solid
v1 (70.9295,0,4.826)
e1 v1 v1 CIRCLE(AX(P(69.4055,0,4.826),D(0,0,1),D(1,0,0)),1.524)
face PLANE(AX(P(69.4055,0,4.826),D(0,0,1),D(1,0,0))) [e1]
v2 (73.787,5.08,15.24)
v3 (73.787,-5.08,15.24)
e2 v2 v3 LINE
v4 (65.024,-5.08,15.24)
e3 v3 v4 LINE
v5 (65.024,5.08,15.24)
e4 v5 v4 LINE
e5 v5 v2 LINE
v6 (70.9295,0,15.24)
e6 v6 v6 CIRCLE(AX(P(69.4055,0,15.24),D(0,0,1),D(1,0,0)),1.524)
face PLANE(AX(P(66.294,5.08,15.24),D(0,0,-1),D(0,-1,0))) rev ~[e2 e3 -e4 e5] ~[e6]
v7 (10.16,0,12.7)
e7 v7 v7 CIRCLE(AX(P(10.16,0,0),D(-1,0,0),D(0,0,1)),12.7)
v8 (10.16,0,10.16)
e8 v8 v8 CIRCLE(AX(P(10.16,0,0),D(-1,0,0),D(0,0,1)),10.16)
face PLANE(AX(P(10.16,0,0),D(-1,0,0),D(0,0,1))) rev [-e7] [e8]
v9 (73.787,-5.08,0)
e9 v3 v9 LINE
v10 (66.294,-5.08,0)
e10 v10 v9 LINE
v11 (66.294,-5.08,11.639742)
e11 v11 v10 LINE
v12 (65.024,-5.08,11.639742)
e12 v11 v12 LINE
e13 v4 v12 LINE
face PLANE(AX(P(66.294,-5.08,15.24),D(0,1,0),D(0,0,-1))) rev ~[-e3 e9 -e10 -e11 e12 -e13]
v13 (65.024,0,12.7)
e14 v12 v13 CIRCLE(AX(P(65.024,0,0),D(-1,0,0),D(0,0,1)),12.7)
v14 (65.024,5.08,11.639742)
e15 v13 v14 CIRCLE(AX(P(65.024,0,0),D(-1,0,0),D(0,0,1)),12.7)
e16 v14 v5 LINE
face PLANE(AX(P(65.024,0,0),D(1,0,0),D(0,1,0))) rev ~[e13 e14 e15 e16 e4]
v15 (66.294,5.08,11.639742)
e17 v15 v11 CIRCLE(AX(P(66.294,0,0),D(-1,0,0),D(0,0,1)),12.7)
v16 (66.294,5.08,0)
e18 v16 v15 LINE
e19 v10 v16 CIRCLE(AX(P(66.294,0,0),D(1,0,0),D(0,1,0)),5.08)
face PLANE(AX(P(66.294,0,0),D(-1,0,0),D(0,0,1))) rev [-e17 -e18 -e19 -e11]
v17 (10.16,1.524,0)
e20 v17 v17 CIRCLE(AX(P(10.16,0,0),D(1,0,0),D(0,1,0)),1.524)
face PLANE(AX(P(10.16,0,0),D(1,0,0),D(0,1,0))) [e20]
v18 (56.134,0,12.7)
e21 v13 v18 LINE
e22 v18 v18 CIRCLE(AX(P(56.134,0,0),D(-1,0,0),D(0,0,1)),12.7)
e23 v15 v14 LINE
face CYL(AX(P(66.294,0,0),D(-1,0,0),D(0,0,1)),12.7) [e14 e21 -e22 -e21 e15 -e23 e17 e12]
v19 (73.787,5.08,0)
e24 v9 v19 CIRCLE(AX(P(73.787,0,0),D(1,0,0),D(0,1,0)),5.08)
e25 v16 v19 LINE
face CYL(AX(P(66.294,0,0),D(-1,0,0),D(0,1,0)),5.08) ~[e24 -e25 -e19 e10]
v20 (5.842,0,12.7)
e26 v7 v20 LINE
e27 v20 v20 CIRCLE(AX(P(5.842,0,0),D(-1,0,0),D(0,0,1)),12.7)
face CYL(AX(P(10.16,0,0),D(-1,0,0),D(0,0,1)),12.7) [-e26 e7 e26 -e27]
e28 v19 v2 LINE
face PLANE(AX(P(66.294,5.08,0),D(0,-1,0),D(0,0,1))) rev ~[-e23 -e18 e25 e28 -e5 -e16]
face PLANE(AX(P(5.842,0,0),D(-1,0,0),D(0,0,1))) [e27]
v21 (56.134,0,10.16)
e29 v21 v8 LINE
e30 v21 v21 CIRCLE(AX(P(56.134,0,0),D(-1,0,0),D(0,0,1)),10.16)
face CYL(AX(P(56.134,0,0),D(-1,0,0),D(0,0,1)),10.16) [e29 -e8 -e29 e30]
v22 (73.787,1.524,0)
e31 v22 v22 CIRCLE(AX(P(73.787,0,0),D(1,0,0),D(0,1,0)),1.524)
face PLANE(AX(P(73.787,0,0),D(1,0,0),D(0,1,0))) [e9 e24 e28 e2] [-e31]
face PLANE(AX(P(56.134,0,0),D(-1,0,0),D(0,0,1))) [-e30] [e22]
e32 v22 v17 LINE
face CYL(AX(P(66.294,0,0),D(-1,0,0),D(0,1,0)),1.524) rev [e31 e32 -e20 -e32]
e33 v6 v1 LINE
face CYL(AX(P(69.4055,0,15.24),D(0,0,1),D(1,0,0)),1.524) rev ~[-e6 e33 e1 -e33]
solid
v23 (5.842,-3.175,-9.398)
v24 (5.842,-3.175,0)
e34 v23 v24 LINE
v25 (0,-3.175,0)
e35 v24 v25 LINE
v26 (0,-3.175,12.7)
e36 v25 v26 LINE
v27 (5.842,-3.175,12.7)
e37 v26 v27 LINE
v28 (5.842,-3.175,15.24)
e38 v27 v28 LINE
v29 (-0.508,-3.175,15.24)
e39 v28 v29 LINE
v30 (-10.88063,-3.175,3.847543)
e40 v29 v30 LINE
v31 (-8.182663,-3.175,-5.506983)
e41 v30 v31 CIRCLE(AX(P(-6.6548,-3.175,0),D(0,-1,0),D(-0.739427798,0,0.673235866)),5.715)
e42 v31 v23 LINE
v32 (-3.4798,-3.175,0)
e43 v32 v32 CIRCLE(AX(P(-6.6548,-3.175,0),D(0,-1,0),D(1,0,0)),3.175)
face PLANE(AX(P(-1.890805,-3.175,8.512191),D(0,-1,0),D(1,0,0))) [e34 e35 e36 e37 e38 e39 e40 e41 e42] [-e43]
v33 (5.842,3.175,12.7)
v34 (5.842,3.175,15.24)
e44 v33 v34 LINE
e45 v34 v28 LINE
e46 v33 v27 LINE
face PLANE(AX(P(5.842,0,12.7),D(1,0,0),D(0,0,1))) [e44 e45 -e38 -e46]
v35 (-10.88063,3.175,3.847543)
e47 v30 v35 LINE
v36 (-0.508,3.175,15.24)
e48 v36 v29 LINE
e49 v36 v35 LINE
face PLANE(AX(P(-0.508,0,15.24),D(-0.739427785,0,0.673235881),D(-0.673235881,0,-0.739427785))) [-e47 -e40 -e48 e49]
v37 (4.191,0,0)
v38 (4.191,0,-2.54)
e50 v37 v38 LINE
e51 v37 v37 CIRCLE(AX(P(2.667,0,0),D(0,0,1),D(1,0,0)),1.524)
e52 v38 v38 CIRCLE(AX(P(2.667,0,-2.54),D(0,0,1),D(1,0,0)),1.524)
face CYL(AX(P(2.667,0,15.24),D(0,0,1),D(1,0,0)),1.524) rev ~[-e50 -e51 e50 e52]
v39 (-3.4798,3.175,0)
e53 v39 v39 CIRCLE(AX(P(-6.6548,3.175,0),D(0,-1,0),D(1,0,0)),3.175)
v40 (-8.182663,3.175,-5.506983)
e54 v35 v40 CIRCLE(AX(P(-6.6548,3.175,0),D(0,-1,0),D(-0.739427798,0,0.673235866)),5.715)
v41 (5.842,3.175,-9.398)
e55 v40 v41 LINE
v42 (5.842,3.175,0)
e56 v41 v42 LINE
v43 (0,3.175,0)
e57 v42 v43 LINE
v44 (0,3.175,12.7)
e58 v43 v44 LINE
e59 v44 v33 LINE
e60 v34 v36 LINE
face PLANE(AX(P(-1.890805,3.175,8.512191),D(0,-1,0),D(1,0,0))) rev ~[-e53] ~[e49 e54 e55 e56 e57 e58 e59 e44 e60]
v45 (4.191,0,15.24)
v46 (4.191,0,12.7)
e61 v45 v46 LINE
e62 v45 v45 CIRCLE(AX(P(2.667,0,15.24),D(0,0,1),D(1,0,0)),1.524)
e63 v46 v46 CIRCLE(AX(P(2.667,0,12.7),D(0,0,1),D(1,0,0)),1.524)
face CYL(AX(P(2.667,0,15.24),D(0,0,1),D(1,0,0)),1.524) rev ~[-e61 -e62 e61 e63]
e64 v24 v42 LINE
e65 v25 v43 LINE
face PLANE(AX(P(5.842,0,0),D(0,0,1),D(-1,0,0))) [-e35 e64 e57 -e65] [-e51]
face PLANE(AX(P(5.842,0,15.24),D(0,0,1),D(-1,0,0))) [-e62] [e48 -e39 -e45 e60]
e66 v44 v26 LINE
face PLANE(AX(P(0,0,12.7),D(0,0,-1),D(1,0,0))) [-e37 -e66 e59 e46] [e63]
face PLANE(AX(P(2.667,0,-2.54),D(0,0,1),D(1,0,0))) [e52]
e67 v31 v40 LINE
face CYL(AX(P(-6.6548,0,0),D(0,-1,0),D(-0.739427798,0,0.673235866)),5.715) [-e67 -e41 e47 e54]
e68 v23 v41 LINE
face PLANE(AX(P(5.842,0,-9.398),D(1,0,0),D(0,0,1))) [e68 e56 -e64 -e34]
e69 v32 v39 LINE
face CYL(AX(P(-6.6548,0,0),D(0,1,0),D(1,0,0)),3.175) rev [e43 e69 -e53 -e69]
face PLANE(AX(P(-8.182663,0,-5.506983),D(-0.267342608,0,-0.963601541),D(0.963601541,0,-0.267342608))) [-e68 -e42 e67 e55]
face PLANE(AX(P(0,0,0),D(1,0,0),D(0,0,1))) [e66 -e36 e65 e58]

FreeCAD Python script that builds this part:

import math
import FreeCAD as App
import Part
import Sketcher
Q = App.Units.Quantity


def add_polygon(sketch, points):
    """Adds a closed chain of lines whose ends are joined by coincident constraints."""
    first, n = sketch.GeometryCount, len(points)
    for a, b in zip(points, points[1:] + points[:1]):
        sketch.addGeometry(Part.LineSegment(App.Vector(*a, 0), App.Vector(*b, 0)), False)
    for i in range(n):
        sketch.addConstraint(Sketcher.Constraint("Coincident", first + i, 2, first + (i + 1) % n, 1))

doc = App.newDocument("Part")
params = doc.addObject("Spreadsheet::Sheet", "Params")
for row, (alias, value) in enumerate([
    ("sketch1_diameter", "0.25 in"),
    ("sketch1_height", "0.5 in"),
    ("sketch1_height2", "0.1 in"),
    ("sketch1_radius", "0.225 in"),
    ("sketch1_width", "0.23 in"),
    ("pad1_length", "0.25 in"),
    ("sketch2_diameter", "0.12 in"),
    ("pocket1_length", "0.7 in"),
    ("sketch3_width", "0.4 in"),
    ("sketch3_height", "0.5 in"),
    ("sketch3_height2", "0.1 in"),
    ("sketch3_width2", "2.38 in"),
    ("sketch3_width3", "1.81 in"),
    ("revolution_angle", "360 deg"),
    ("sketch4_radius", "0.2 in"),
    ("sketch4_diameter", "0.12 in"),
    ("sketch4_height", "0.6 in"),
    ("pad2_length", "0.05 in"),
    ("sketch5_radius", "0.2 in"),
    ("sketch5_diameter", "0.12 in"),
    ("sketch5_height", "0.6 in"),
    ("pad3_length", "0.295 in"),
    ("sketch6_diameter", "0.12 in"),
    ("pocket2_length", "2.21 in"),
    ("sketch7_diameter", "0.12 in"),
    ("pocket3_length", "0.41 in"),
], start=1):
    params.set(f"A{row}", alias)
    params.set(f"B{row}", "=" + value)
    params.setAlias(f"B{row}", alias)

body = doc.addObject("PartDesign::Body", "Body")

# Sketch on XZ plane
sketch1 = doc.addObject("Sketcher::SketchObject", "Sketch")
body.addObject(sketch1)
sketch1.AttachmentSupport = (doc.XZ_Plane, [""])
sketch1.MapMode = "FlatFace"
sketch1.addGeometry([
    Part.LineSegment(App.Vector(0, 0, 0), App.Vector(0, 12.7, 0)),  # 0
    Part.LineSegment(App.Vector(0, 12.7, 0), App.Vector(5.8, 12.7, 0)),  # 1
    Part.LineSegment(App.Vector(5.8, 12.7, 0), App.Vector(5.8, 15.2, 0)),  # 2
    Part.LineSegment(App.Vector(5.8, 15.2, 0), App.Vector(-0.5, 15.2, 0)),  # 3
    Part.LineSegment(App.Vector(-0.5, 15.2, 0), App.Vector(-10.9, 3.8, 0)),  # 4
    Part.ArcOfCircle(Part.Circle(App.Vector(-6.7, 0, 0), App.Vector(0, 0, 1), 5.7), math.radians(138), math.radians(254)),  # 5
    Part.LineSegment(App.Vector(-8.2, -5.5, 0), App.Vector(5.8, -9.4, 0)),  # 6
    Part.LineSegment(App.Vector(5.8, -9.4, 0), App.Vector(5.8, 0, 0)),  # 7
    Part.LineSegment(App.Vector(5.8, 0, 0), App.Vector(0, 0, 0)),  # 8
    Part.Circle(App.Vector(-6.7, 0, 0), App.Vector(0, 0, 1), 3.2),  # 9
], False)
sketch1.addConstraint([
    Sketcher.Constraint("Coincident", 0, 2, 1, 1),
    Sketcher.Constraint("Coincident", 1, 2, 2, 1),
    Sketcher.Constraint("Coincident", 2, 2, 3, 1),
    Sketcher.Constraint("Coincident", 3, 2, 4, 1),
    Sketcher.Constraint("Tangent", 4, 2, 5, 1),
    Sketcher.Constraint("Tangent", 5, 2, 6, 1),
    Sketcher.Constraint("Coincident", 6, 2, 7, 1),
    Sketcher.Constraint("Coincident", 7, 2, 8, 1),
    Sketcher.Constraint("Coincident", 8, 2, 0, 1),
    Sketcher.Constraint("Vertical", 0),
    Sketcher.Constraint("Horizontal", 1),
    Sketcher.Constraint("Vertical", 2),
    Sketcher.Constraint("Horizontal", 3),
    Sketcher.Constraint("Vertical", 7),
    Sketcher.Constraint("Horizontal", 8),
    Sketcher.Constraint("Coincident", 8, 2, -1, 1),
    Sketcher.Constraint("Coincident", 9, 3, 5, 3),
    Sketcher.Constraint("PointOnObject", 5, 3, -1),
    Sketcher.Constraint("Vertical", 2, 2, 6, 2),
    Sketcher.Constraint("Diameter", 9, Q("0.25 in")),
    Sketcher.Constraint("DistanceY", 0, 1, 0, 2, Q("0.5 in")),
    Sketcher.Constraint("DistanceY", 2, 1, 2, 2, Q("0.1 in")),
    Sketcher.Constraint("Radius", 5, Q("0.225 in")),
    Sketcher.Constraint("DistanceX", 1, 1, 1, 2, Q("0.23 in")),
    Sketcher.Constraint("DistanceX", 3, 2, 3, 1, Q("0.25 in")),
    Sketcher.Constraint("DistanceY", 7, 1, 7, 2, Q("0.37 in")),
    Sketcher.Constraint("DistanceX", 5, 3, -1, 1, Q("0.262 in")),
])
sketch1.setExpression("Constraints[19]", "Params.sketch1_diameter")
sketch1.setExpression("Constraints[20]", "Params.sketch1_height")
sketch1.setExpression("Constraints[21]", "Params.sketch1_height2")
sketch1.setExpression("Constraints[22]", "Params.sketch1_radius")
sketch1.setExpression("Constraints[23]", "Params.sketch1_width")
pad1 = doc.addObject("PartDesign::Pad", "Pad")
body.addObject(pad1)
pad1.Profile = sketch1
pad1.setExpression("Length", "Params.pad1_length")
pad1.Midplane = True

# Sketch on XY plane
sketch2 = doc.addObject("Sketcher::SketchObject", "Sketch001")
body.addObject(sketch2)
sketch2.AttachmentSupport = (doc.XY_Plane, [""])
sketch2.MapMode = "FlatFace"
sketch2.AttachmentOffset = App.Placement(App.Vector(0, 0, 0.6 * 25.4), App.Rotation())
sketch2.addGeometry(Part.Circle(App.Vector(2.7, 0, 0), App.Vector(0, 0, 1), 1.5), False)
sketch2.addConstraint([
    Sketcher.Constraint("PointOnObject", 0, 3, -1),
    Sketcher.Constraint("Diameter", 0, Q("0.12 in")),
    Sketcher.Constraint("DistanceX", -1, 1, 0, 3, Q("0.105 in")),
])
sketch2.setExpression("Constraints[1]", "Params.sketch2_diameter")
pocket1 = doc.addObject("PartDesign::Pocket", "Pocket")
body.addObject(pocket1)
pocket1.Profile = sketch2
pocket1.setExpression("Length", "Params.pocket1_length")
body2 = doc.addObject("PartDesign::Body", "Body001")

# Sketch on XZ plane
sketch3 = doc.addObject("Sketcher::SketchObject", "Sketch002")
body2.addObject(sketch3)
sketch3.AttachmentSupport = (doc.getObject("XZ_Plane001"), [""])
sketch3.MapMode = "FlatFace"
add_polygon(sketch3, [(5.8, 12.7), (5.8, 0), (66.3, 0), (66.3, 12.7), (56.1, 12.7), (56.1, 10.2), (10.2, 10.2), (10.2, 12.7)])  # lines 0-7
sketch3.addConstraint([
    Sketcher.Constraint("Vertical", 0),
    Sketcher.Constraint("Horizontal", 1),
    Sketcher.Constraint("Vertical", 2),
    Sketcher.Constraint("Horizontal", 3),
    Sketcher.Constraint("Vertical", 4),
    Sketcher.Constraint("Horizontal", 5),
    Sketcher.Constraint("Vertical", 6),
    Sketcher.Constraint("Horizontal", 7),
    Sketcher.Constraint("PointOnObject", 0, 2, -1),
    Sketcher.Constraint("Horizontal", 3, 2, 6, 2),
    Sketcher.Constraint("DistanceX", 3, 2, 3, 1, Q("0.4 in")),
    Sketcher.Constraint("DistanceY", 0, 2, 0, 1, Q("0.5 in")),
    Sketcher.Constraint("DistanceY", 4, 2, 4, 1, Q("0.1 in")),
    Sketcher.Constraint("DistanceX", 1, 1, 1, 2, Q("2.38 in")),
    Sketcher.Constraint("DistanceX", 5, 2, 5, 1, Q("1.81 in")),
    Sketcher.Constraint("DistanceX", -1, 1, 5, 2, Q("0.4 in")),
])
sketch3.setExpression("Constraints[18]", "Params.sketch3_width")
sketch3.setExpression("Constraints[19]", "Params.sketch3_height")
sketch3.setExpression("Constraints[20]", "Params.sketch3_height2")
sketch3.setExpression("Constraints[21]", "Params.sketch3_width2")
sketch3.setExpression("Constraints[22]", "Params.sketch3_width3")
revolution = doc.addObject("PartDesign::Revolution", "Revolution")
body2.addObject(revolution)
revolution.Profile = sketch3
revolution.ReferenceAxis = (sketch3, ["H_Axis"])
revolution.setExpression("Angle", "Params.revolution_angle")

# Sketch on YZ plane
sketch4 = doc.addObject("Sketcher::SketchObject", "Sketch003")
body2.addObject(sketch4)
sketch4.AttachmentSupport = (doc.getObject("YZ_Plane001"), [""])
sketch4.MapMode = "FlatFace"
sketch4.AttachmentOffset = App.Placement(App.Vector(0, 0, 2.61 * 25.4), App.Rotation())
sketch4.addGeometry([
    Part.ArcOfCircle(Part.Circle(App.Vector(0, 0, 0), App.Vector(0, 0, 1), 5.1), math.radians(180), math.radians(360)),  # 0
    Part.LineSegment(App.Vector(5.1, 0, 0), App.Vector(5.1, 15.2, 0)),  # 1
    Part.LineSegment(App.Vector(5.1, 15.2, 0), App.Vector(-5.1, 15.2, 0)),  # 2
    Part.LineSegment(App.Vector(-5.1, 15.2, 0), App.Vector(-5.1, 0, 0)),  # 3
    Part.Circle(App.Vector(0, 0, 0), App.Vector(0, 0, 1), 1.5),  # 4
], False)
sketch4.addConstraint([
    Sketcher.Constraint("Tangent", 0, 2, 1, 1),
    Sketcher.Constraint("Coincident", 1, 2, 2, 1),
    Sketcher.Constraint("Coincident", 2, 2, 3, 1),
    Sketcher.Constraint("Tangent", 3, 2, 0, 1),
    Sketcher.Constraint("Vertical", 1),
    Sketcher.Constraint("Horizontal", 2),
    Sketcher.Constraint("Vertical", 3),
    Sketcher.Constraint("Coincident", 0, 3, -1, 1),
    Sketcher.Constraint("Coincident", 4, 3, -1, 1),
    Sketcher.Constraint("Radius", 0, Q("0.2 in")),
    Sketcher.Constraint("Diameter", 4, Q("0.12 in")),
    Sketcher.Constraint("DistanceY", 1, 1, 1, 2, Q("0.6 in")),
])
sketch4.setExpression("Constraints[9]", "Params.sketch4_radius")
sketch4.setExpression("Constraints[10]", "Params.sketch4_diameter")
sketch4.setExpression("Constraints[11]", "Params.sketch4_height")
pad2 = doc.addObject("PartDesign::Pad", "Pad001")
body2.addObject(pad2)
pad2.Profile = sketch4
pad2.setExpression("Length", "Params.pad2_length")
pad2.Reversed = True

# Sketch on YZ plane
sketch5 = doc.addObject("Sketcher::SketchObject", "Sketch004")
body2.addObject(sketch5)
sketch5.AttachmentSupport = (doc.getObject("YZ_Plane001"), [""])
sketch5.MapMode = "FlatFace"
sketch5.AttachmentOffset = App.Placement(App.Vector(0, 0, 2.61 * 25.4), App.Rotation())
sketch5.addGeometry([
    Part.ArcOfCircle(Part.Circle(App.Vector(0, 0, 0), App.Vector(0, 0, 1), 5.1), math.radians(180), math.radians(360)),  # 0
    Part.LineSegment(App.Vector(5.1, 0, 0), App.Vector(5.1, 15.2, 0)),  # 1
    Part.LineSegment(App.Vector(5.1, 15.2, 0), App.Vector(-5.1, 15.2, 0)),  # 2
    Part.LineSegment(App.Vector(-5.1, 15.2, 0), App.Vector(-5.1, 0, 0)),  # 3
    Part.Circle(App.Vector(0, 0, 0), App.Vector(0, 0, 1), 1.5),  # 4
], False)
sketch5.addConstraint([
    Sketcher.Constraint("Tangent", 0, 2, 1, 1),
    Sketcher.Constraint("Coincident", 1, 2, 2, 1),
    Sketcher.Constraint("Coincident", 2, 2, 3, 1),
    Sketcher.Constraint("Tangent", 3, 2, 0, 1),
    Sketcher.Constraint("Vertical", 1),
    Sketcher.Constraint("Horizontal", 2),
    Sketcher.Constraint("Vertical", 3),
    Sketcher.Constraint("Coincident", 0, 3, -1, 1),
    Sketcher.Constraint("Coincident", 4, 3, -1, 1),
    Sketcher.Constraint("Radius", 0, Q("0.2 in")),
    Sketcher.Constraint("Diameter", 4, Q("0.12 in")),
    Sketcher.Constraint("DistanceY", 1, 1, 1, 2, Q("0.6 in")),
])
sketch5.setExpression("Constraints[9]", "Params.sketch5_radius")
sketch5.setExpression("Constraints[10]", "Params.sketch5_diameter")
sketch5.setExpression("Constraints[11]", "Params.sketch5_height")
pad3 = doc.addObject("PartDesign::Pad", "Pad002")
body2.addObject(pad3)
pad3.Profile = sketch5
pad3.setExpression("Length", "Params.pad3_length")

# Sketch on YZ plane
sketch6 = doc.addObject("Sketcher::SketchObject", "Sketch005")
body2.addObject(sketch6)
sketch6.AttachmentSupport = (doc.getObject("YZ_Plane001"), [""])
sketch6.MapMode = "FlatFace"
sketch6.AttachmentOffset = App.Placement(App.Vector(0, 0, 2.61 * 25.4), App.Rotation())
sketch6.addGeometry(Part.Circle(App.Vector(0, 0, 0), App.Vector(0, 0, 1), 1.5), False)
sketch6.addConstraint([
    Sketcher.Constraint("Coincident", 0, 3, -1, 1),
    Sketcher.Constraint("Diameter", 0, Q("0.12 in")),
])
sketch6.setExpression("Constraints[1]", "Params.sketch6_diameter")
pocket2 = doc.addObject("PartDesign::Pocket", "Pocket001")
body2.addObject(pocket2)
pocket2.Profile = sketch6
pocket2.setExpression("Length", "Params.pocket2_length")

# Sketch on XY plane
sketch7 = doc.addObject("Sketcher::SketchObject", "Sketch006")
body2.addObject(sketch7)
sketch7.AttachmentSupport = (doc.getObject("XY_Plane001"), [""])
sketch7.MapMode = "FlatFace"
sketch7.AttachmentOffset = App.Placement(App.Vector(0, 0, 0.6 * 25.4), App.Rotation())
sketch7.addGeometry(Part.Circle(App.Vector(69.4, 0, 0), App.Vector(0, 0, 1), 1.5), False)
sketch7.addConstraint([
    Sketcher.Constraint("PointOnObject", 0, 3, -1),
    Sketcher.Constraint("Diameter", 0, Q("0.12 in")),
    Sketcher.Constraint("DistanceX", -1, 1, 0, 3, Q("2.7325 in")),
])
sketch7.setExpression("Constraints[1]", "Params.sketch7_diameter")
pocket3 = doc.addObject("PartDesign::Pocket", "Pocket002")
body2.addObject(pocket3)
pocket3.Profile = sketch7
pocket3.setExpression("Length", "Params.pocket3_length")

doc.recompute()
